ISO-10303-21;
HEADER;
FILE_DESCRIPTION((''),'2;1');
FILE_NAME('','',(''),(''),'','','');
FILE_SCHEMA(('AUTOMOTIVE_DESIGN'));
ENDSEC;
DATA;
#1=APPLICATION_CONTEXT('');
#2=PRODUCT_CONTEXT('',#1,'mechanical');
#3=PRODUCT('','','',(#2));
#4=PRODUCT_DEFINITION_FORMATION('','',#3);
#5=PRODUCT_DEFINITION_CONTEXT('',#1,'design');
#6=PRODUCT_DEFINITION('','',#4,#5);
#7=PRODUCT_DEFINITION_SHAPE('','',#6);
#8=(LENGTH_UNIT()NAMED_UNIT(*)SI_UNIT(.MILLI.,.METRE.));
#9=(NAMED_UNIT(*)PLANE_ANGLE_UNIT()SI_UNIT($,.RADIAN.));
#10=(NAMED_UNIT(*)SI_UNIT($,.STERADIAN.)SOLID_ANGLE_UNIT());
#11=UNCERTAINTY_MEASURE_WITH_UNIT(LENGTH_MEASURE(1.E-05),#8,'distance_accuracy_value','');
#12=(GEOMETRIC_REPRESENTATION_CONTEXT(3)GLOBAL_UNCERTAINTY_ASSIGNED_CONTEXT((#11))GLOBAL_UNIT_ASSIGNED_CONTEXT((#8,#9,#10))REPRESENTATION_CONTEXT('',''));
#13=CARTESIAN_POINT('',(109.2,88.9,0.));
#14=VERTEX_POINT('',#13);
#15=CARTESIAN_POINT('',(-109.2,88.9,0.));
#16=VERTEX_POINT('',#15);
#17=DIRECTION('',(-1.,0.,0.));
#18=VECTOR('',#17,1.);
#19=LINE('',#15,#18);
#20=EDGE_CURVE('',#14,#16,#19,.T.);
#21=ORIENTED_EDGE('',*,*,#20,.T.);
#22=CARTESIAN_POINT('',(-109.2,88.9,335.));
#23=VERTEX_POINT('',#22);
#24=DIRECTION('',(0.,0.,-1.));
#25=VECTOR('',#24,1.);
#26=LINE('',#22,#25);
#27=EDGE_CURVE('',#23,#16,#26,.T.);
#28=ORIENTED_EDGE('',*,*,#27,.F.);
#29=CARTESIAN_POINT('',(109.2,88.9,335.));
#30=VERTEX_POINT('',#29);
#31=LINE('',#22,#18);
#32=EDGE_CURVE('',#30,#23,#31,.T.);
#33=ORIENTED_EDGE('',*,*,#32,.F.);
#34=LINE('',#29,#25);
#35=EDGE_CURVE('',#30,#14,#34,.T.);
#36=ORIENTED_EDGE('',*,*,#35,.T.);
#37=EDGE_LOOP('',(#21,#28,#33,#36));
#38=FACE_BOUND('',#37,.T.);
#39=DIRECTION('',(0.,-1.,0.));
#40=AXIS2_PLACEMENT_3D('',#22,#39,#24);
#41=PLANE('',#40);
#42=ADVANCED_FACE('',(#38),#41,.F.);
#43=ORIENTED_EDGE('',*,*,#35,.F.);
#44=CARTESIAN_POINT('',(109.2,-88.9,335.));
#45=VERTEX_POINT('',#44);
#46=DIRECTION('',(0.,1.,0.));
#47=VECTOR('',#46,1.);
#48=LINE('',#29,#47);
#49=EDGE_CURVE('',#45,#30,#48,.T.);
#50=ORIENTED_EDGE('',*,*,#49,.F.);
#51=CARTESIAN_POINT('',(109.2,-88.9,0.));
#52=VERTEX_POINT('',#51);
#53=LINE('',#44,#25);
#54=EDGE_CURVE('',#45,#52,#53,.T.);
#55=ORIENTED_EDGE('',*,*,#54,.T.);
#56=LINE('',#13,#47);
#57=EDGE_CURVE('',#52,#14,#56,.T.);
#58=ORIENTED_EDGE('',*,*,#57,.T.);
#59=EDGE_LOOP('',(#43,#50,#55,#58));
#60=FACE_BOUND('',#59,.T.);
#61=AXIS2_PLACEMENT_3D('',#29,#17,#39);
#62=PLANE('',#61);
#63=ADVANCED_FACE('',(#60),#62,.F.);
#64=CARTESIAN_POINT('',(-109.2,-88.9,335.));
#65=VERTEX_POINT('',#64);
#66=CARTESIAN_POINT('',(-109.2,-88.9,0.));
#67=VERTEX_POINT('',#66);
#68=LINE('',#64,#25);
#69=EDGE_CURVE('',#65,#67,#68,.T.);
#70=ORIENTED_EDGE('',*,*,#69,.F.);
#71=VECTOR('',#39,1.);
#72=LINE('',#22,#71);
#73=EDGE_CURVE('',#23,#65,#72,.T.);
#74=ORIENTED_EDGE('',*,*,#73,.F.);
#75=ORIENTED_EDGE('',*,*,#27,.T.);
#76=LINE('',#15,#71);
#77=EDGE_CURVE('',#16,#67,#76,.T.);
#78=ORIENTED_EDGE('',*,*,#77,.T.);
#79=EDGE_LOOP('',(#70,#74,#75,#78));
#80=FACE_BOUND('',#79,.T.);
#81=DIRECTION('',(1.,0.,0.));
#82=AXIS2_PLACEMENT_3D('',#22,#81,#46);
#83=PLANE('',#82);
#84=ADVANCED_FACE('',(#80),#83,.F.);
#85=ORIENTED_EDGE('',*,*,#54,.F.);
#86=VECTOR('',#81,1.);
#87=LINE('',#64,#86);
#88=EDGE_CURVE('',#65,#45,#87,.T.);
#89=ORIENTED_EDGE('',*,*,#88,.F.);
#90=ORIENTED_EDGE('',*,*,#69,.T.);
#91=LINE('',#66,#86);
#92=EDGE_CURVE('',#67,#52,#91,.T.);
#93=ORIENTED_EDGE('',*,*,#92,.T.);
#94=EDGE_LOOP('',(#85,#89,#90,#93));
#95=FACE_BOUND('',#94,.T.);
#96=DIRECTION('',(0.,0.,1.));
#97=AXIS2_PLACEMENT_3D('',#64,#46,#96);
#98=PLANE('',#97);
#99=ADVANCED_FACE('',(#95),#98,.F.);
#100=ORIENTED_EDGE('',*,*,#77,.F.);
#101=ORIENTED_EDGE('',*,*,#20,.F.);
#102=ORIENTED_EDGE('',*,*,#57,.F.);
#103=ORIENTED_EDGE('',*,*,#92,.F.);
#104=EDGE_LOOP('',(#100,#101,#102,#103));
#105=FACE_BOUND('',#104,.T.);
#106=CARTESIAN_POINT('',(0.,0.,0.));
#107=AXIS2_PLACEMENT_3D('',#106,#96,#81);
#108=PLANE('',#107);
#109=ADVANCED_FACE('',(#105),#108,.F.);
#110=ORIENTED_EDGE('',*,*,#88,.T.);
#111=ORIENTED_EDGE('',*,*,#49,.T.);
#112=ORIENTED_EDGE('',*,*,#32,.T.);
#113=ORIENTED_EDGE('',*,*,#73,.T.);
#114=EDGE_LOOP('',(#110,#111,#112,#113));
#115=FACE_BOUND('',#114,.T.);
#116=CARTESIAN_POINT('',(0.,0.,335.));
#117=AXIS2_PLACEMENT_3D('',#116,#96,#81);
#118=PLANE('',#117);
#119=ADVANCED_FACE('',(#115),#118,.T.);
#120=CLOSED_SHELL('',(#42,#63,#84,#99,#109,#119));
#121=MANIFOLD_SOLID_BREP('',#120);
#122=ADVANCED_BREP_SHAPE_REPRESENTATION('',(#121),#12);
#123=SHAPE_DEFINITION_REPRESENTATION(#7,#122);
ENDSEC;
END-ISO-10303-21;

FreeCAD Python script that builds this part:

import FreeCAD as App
import Part
import Sketcher
Q = App.Units.Quantity

doc = App.newDocument("Part")
body = doc.addObject("PartDesign::Body", "Body")

# Sketch on XY plane
sketch1 = body.newObject("Sketcher::SketchObject", "Sketch")
sketch1.AttachmentSupport = (doc.getObject("XY_Plane"), [""])
sketch1.MapMode = "FlatFace"
sketch1.addGeometry([
    Part.LineSegment(App.Vector(-109, 89, 0), App.Vector(-109, -89, 0)),
    Part.LineSegment(App.Vector(-109, -89, 0), App.Vector(109, -89, 0)),
    Part.LineSegment(App.Vector(109, -89, 0), App.Vector(109, 89, 0)),
    Part.LineSegment(App.Vector(109, 89, 0), App.Vector(-109, 89, 0)),
], False)
sketch1.addConstraint([
    Sketcher.Constraint("Coincident", 0, 2, 1, 1),
    Sketcher.Constraint("Coincident", 1, 2, 2, 1),
    Sketcher.Constraint("Coincident", 2, 2, 3, 1),
    Sketcher.Constraint("Coincident", 3, 2, 0, 1),
    Sketcher.Constraint("Vertical", 0),
    Sketcher.Constraint("Horizontal", 1),
    Sketcher.Constraint("Vertical", 2),
    Sketcher.Constraint("Horizontal", 3),
    Sketcher.Constraint("Symmetric", 0, 2, 2, 2, -1, 1),
    Sketcher.Constraint("DistanceX", 1, 1, 1, 2, Q("218.4 mm")),
    Sketcher.Constraint("DistanceY", 0, 2, 0, 1, Q("177.8 mm")),
])
pad1 = body.newObject("PartDesign::Pad", "Pad")
pad1.Profile = sketch1
pad1.Length = 335

doc.recompute()
